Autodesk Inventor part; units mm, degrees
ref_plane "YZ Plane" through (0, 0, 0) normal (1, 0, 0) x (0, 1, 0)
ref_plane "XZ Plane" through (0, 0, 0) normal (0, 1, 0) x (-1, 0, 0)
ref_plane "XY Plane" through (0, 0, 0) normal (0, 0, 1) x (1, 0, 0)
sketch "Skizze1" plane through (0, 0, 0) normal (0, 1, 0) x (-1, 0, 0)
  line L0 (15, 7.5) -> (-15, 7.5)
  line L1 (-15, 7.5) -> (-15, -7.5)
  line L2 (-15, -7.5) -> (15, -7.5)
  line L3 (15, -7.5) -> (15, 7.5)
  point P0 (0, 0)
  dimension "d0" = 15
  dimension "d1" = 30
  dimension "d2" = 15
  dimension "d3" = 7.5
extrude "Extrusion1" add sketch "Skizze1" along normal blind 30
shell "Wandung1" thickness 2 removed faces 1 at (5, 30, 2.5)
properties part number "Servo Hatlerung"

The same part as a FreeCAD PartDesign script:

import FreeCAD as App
import Part
import Sketcher

V = App.Vector
Q = App.Units.Quantity


def faces_at(feature, points):
    """Names of the faces that lie closest to the given points."""
    faces = feature.Shape.Faces
    near = lambda p: min(range(len(faces)), key=lambda i: faces[i].distToShape(Part.Vertex(*p))[0])
    return sorted({f"Face{near(p) + 1}" for p in points})

doc = App.newDocument("Part")
params = doc.addObject("Spreadsheet::Sheet", "Params")
for row, (alias, value) in enumerate([
    ("sketch1_width", "30 mm"),
    ("sketch1_height", "15 mm"),
    ("pad1_length", "30 mm"),
    ("thickness_wall", "2 mm"),
], start=1):
    params.set(f"A{row}", alias)
    params.set(f"B{row}", "=" + value)
    params.setAlias(f"B{row}", alias)

body = doc.addObject("PartDesign::Body", "Body")

# Sketch on XZ plane
sketch1 = body.newObject("Sketcher::SketchObject", "Sketch")
sketch1.AttachmentSupport = (doc.getObject("XZ_Plane"), [""])
sketch1.MapMode = "FlatFace"
sketch1.addGeometry(Part.LineSegment(V(-15, -8, 0), V(-15, 8, 0)), False)
sketch1.addGeometry(Part.LineSegment(V(-15, 8, 0), V(15, 8, 0)), False)
sketch1.addGeometry(Part.LineSegment(V(15, 8, 0), V(15, -8, 0)), False)
sketch1.addGeometry(Part.LineSegment(V(15, -8, 0), V(-15, -8, 0)), False)
sketch1.addConstraint(Sketcher.Constraint("Coincident", 0, 2, 1, 1))
sketch1.addConstraint(Sketcher.Constraint("Coincident", 1, 2, 2, 1))
sketch1.addConstraint(Sketcher.Constraint("Coincident", 2, 2, 3, 1))
sketch1.addConstraint(Sketcher.Constraint("Coincident", 3, 2, 0, 1))
sketch1.addConstraint(Sketcher.Constraint("Vertical", 0))
sketch1.addConstraint(Sketcher.Constraint("Horizontal", 1))
sketch1.addConstraint(Sketcher.Constraint("Vertical", 2))
sketch1.addConstraint(Sketcher.Constraint("Horizontal", 3))
sketch1.addConstraint(Sketcher.Constraint("Symmetric", 0, 2, 2, 2, -1, 1))
sketch1.addConstraint(Sketcher.Constraint("DistanceX", 1, 1, 1, 2, Q("30 mm")))
sketch1.addConstraint(Sketcher.Constraint("DistanceY", 0, 1, 0, 2, Q("15 mm")))
sketch1.setExpression("Constraints[9]", "Params.sketch1_width")
sketch1.setExpression("Constraints[10]", "Params.sketch1_height")
pad1 = body.newObject("PartDesign::Pad", "Pad")
pad1.Profile = sketch1
pad1.setExpression("Length", "Params.pad1_length")
pad1.Reversed = True
doc.recompute()

thickness = body.newObject("PartDesign::Thickness", "Thickness")
thickness.Base = (pad1, faces_at(pad1, [(5, 30, 2.5)]))
thickness.setExpression("Value", "Params.thickness_wall")
thickness.Reversed = True
thickness.Join = "Intersection"

doc.recompute()
